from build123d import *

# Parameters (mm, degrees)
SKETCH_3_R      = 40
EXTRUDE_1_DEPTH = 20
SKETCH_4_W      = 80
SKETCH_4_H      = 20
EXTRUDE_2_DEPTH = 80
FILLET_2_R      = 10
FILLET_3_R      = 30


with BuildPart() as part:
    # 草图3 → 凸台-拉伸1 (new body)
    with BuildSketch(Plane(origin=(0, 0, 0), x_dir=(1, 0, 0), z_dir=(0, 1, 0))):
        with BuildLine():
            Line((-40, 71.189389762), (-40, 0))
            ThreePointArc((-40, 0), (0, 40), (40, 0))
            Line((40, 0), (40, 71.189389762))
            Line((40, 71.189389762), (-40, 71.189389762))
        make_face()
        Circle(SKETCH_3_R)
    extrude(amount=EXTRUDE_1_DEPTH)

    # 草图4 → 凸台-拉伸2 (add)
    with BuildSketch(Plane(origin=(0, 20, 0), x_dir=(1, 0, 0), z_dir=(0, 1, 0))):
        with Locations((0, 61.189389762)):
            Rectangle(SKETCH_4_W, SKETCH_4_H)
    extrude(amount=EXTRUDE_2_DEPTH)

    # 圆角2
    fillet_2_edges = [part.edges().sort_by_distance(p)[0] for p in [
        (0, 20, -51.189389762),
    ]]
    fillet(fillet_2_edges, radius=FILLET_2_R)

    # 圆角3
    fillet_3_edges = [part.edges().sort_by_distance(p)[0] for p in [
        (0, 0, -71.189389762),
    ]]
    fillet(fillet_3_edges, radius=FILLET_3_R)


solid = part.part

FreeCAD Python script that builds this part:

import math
import FreeCAD as App
import Part
import Sketcher

V = App.Vector


def edges_at(feature, points):
    """Names of the edges that pass closest to the given points."""
    edges = feature.Shape.Edges
    near = lambda p: min(range(len(edges)), key=lambda i: edges[i].distToShape(Part.Vertex(*p))[0])
    return sorted({f"Edge{near(p) + 1}" for p in points})


def add_polygon(sketch, points):
    """Adds a closed chain of lines whose ends are joined by coincident constraints."""
    first, n = sketch.GeometryCount, len(points)
    for a, b in zip(points, points[1:] + points[:1]):
        sketch.addGeometry(Part.LineSegment(App.Vector(*a, 0), App.Vector(*b, 0)), False)
    for i in range(n):
        sketch.addConstraint(Sketcher.Constraint("Coincident", first + i, 2, first + (i + 1) % n, 1))

doc = App.newDocument("Part")
params = doc.addObject("Spreadsheet::Sheet", "Params")
for row, (alias, value) in enumerate([
    ("sketch1_radius", "40 mm"),
    ("pad1_length", "20 mm"),
    ("sketch2_width", "80 mm"),
    ("sketch2_height", "20 mm"),
    ("pad2_length", "80 mm"),
    ("fillet_radius", "10 mm"),
    ("fillet2_radius", "30 mm"),
], start=1):
    params.set(f"A{row}", alias)
    params.set(f"B{row}", "=" + value)
    params.setAlias(f"B{row}", alias)

body = doc.addObject("PartDesign::Body", "Body")

# Sketch on XZ plane
sketch1 = body.newObject("Sketcher::SketchObject", "Sketch")
sketch1.AttachmentSupport = (doc.getObject("XZ_Plane"), [""])
sketch1.MapMode = "FlatFace"
sketch1.addGeometry([
    Part.LineSegment(V(-40, -71.18939, 0), V(-40, 0, 0)),
    Part.ArcOfCircle(Part.Circle(V(0, 0, 0), V(0, 0, 1), 40), math.radians(0), math.radians(180)),
    Part.LineSegment(V(40, 0, 0), V(40, -71.18939, 0)),
    Part.LineSegment(V(40, -71.18939, 0), V(-40, -71.18939, 0)),
], False)
sketch1.addConstraint([
    Sketcher.Constraint("Tangent", 0, 2, 1, 2),
    Sketcher.Constraint("Tangent", 1, 1, 2, 1),
    Sketcher.Constraint("Coincident", 2, 2, 3, 1),
    Sketcher.Constraint("Coincident", 3, 2, 0, 1),
    Sketcher.Constraint("Vertical", 0),
    Sketcher.Constraint("Vertical", 2),
    Sketcher.Constraint("Horizontal", 3),
    Sketcher.Constraint("Coincident", 1, 3, -1, 1),
    Sketcher.Constraint("Radius", 1, 40.0),
    Sketcher.Constraint("DistanceY", 0, 1, 0, 2, 71.18939),
])
sketch1.setExpression("Constraints[8]", "Params.sketch1_radius")
pad1 = body.newObject("PartDesign::Pad", "Pad")
pad1.Profile = sketch1
pad1.setExpression("Length", "Params.pad1_length")
pad1.Reversed = True

# Sketch on XZ plane
sketch2 = body.newObject("Sketcher::SketchObject", "Sketch001")
sketch2.AttachmentSupport = (doc.getObject("XZ_Plane"), [""])
sketch2.MapMode = "FlatFace"
sketch2.AttachmentOffset = App.Placement(V(0, 0, -20), App.Rotation())
add_polygon(sketch2, [(-40, -71.18939), (-40, -51.18939), (40, -51.18939), (40, -71.18939)])  # lines 0-3
sketch2.addConstraint([
    Sketcher.Constraint("Vertical", 0),
    Sketcher.Constraint("Horizontal", 1),
    Sketcher.Constraint("Vertical", 2),
    Sketcher.Constraint("Horizontal", 3),
    Sketcher.Constraint("DistanceX", 1, 1, 1, 2, 80.0),
    Sketcher.Constraint("DistanceY", 0, 1, 0, 2, 20.0),
    Sketcher.Constraint("DistanceX", 0, 2, -1, 1, 40.0),
    Sketcher.Constraint("DistanceY", 0, 2, -1, 1, 51.18939),
])
sketch2.setExpression("Constraints[8]", "Params.sketch2_width")
sketch2.setExpression("Constraints[9]", "Params.sketch2_height")
pad2 = body.newObject("PartDesign::Pad", "Pad001")
pad2.Profile = sketch2
pad2.setExpression("Length", "Params.pad2_length")
pad2.Reversed = True
doc.recompute()

fillet = body.newObject("PartDesign::Fillet", "Fillet")
fillet.Base = (pad2, edges_at(pad2, [(0, 20, -51.189)]))
fillet.setExpression("Radius", "Params.fillet_radius")
doc.recompute()

fillet2 = body.newObject("PartDesign::Fillet", "Fillet001")
fillet2.Base = (fillet, edges_at(fillet, [(0, 0, -71.189)]))
fillet2.setExpression("Radius", "Params.fillet2_radius")

doc.recompute()
